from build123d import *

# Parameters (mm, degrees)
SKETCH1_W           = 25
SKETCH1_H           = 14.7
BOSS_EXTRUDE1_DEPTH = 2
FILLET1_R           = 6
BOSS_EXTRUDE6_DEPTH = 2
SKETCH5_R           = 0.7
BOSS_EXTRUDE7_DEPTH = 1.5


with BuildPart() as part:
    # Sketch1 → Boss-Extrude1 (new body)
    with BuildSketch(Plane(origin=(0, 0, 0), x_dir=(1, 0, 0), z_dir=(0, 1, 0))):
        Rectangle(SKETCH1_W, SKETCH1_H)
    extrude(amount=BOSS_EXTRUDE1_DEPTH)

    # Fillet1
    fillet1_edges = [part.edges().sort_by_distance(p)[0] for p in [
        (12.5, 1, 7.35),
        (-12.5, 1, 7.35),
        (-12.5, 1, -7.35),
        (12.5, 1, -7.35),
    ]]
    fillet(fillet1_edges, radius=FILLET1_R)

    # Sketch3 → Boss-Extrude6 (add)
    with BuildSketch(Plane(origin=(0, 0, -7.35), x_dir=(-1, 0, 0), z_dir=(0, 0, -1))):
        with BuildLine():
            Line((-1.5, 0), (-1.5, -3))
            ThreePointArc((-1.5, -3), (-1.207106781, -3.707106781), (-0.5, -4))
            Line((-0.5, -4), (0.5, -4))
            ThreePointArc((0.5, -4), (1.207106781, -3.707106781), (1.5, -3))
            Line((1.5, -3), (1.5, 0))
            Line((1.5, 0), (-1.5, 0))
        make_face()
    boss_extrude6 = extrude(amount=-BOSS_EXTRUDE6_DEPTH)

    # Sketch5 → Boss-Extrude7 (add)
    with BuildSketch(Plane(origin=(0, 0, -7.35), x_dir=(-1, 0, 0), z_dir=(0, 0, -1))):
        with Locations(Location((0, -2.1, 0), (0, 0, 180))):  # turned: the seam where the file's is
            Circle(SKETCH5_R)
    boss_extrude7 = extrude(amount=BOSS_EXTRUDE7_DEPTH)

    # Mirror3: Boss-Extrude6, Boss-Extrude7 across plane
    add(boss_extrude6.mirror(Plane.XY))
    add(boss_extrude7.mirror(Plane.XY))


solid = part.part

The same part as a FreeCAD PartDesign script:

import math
import FreeCAD as App
import Part
import Sketcher

V = App.Vector
Q = App.Units.Quantity


def edges_at(feature, points):
    """Names of the edges that pass closest to the given points."""
    edges = feature.Shape.Edges
    near = lambda p: min(range(len(edges)), key=lambda i: edges[i].distToShape(Part.Vertex(*p))[0])
    return sorted({f"Edge{near(p) + 1}" for p in points})

doc = App.newDocument("Part")
body = doc.addObject("PartDesign::Body", "Body")

sketch1 = body.newObject("Sketcher::SketchObject", "Sketch")
sketch1.AttachmentSupport = (doc.getObject("XZ_Plane"), [""])
sketch1.MapMode = "FlatFace"
sketch1.addGeometry([
    Part.LineSegment(V(-12, -7, 0), V(-12, 7, 0)),
    Part.LineSegment(V(-12, 7, 0), V(12, 7, 0)),
    Part.LineSegment(V(12, 7, 0), V(12, -7, 0)),
    Part.LineSegment(V(12, -7, 0), V(-12, -7, 0)),
], False)
sketch1.addConstraint([
    Sketcher.Constraint("Coincident", 0, 2, 1, 1),
    Sketcher.Constraint("Coincident", 1, 2, 2, 1),
    Sketcher.Constraint("Coincident", 2, 2, 3, 1),
    Sketcher.Constraint("Coincident", 3, 2, 0, 1),
    Sketcher.Constraint("Vertical", 0),
    Sketcher.Constraint("Horizontal", 1),
    Sketcher.Constraint("Vertical", 2),
    Sketcher.Constraint("Horizontal", 3),
    Sketcher.Constraint("Symmetric", 0, 2, 2, 2, -1, 1),
    Sketcher.Constraint("DistanceX", 1, 1, 1, 2, Q("25 mm")),
    Sketcher.Constraint("DistanceY", 0, 1, 0, 2, Q("14.7 mm")),
])
pad1 = body.newObject("PartDesign::Pad", "Pad")
pad1.Profile = sketch1
pad1.Length = 2
pad1.Reversed = True
doc.recompute()

fillet = body.newObject("PartDesign::Fillet", "Fillet")
fillet.Base = (pad1, edges_at(pad1, [
    (12.5, 1, 7.35),
    (-12.5, 1, 7.35),
    (-12.5, 1, -7.35),
    (12.5, 1, -7.35),
]))
fillet.Radius = 6

sketch2 = body.newObject("Sketcher::SketchObject", "Sketch001")
sketch2.AttachmentSupport = (doc.getObject("XY_Plane"), [""])
sketch2.MapMode = "FlatFace"
sketch2.AttachmentOffset = App.Placement(V(0, 0, -7.35), App.Rotation())
sketch2.addGeometry([
    Part.LineSegment(V(1.5, 0, 0), V(1.5, -3, 0)),
    Part.ArcOfCircle(Part.Circle(V(0.5, -3, 0), V(0, 0, 1), 1), math.radians(-90), math.radians(0)),
    Part.LineSegment(V(0.5, -4, 0), V(-0.5, -4, 0)),
    Part.ArcOfCircle(Part.Circle(V(-0.5, -3, 0), V(0, 0, 1), 1), math.radians(-180), math.radians(-90)),
    Part.LineSegment(V(-1.5, -3, 0), V(-1.5, 0, 0)),
    Part.LineSegment(V(-1.5, 0, 0), V(1.5, 0, 0)),
], False)
sketch2.addConstraint([
    Sketcher.Constraint("Tangent", 0, 2, 1, 2),
    Sketcher.Constraint("Tangent", 1, 1, 2, 1),
    Sketcher.Constraint("Tangent", 2, 2, 3, 2),
    Sketcher.Constraint("Tangent", 3, 1, 4, 1),
    Sketcher.Constraint("Coincident", 4, 2, 5, 1),
    Sketcher.Constraint("Coincident", 5, 2, 0, 1),
    Sketcher.Constraint("Vertical", 0),
    Sketcher.Constraint("Horizontal", 2),
    Sketcher.Constraint("Vertical", 4),
    Sketcher.Constraint("Horizontal", 5),
    Sketcher.Constraint("Equal", 1, 3),
    Sketcher.Constraint("Symmetric", 4, 2, 5, 2, -1, 1),
    Sketcher.Constraint("Equal", 5, 0),
    Sketcher.Constraint("Radius", 1, Q("1 mm")),
    Sketcher.Constraint("DistanceX", 2, 2, 2, 1, Q("1 mm")),
])
pad2 = body.newObject("PartDesign::Pad", "Pad001")
pad2.Profile = sketch2
pad2.Length = 2

sketch3 = body.newObject("Sketcher::SketchObject", "Sketch002")
sketch3.AttachmentSupport = (doc.getObject("XY_Plane"), [""])
sketch3.MapMode = "FlatFace"
sketch3.AttachmentOffset = App.Placement(V(0, 0, -7.35), App.Rotation())
sketch3.addGeometry(Part.Circle(V(0, -2.1, 0), V(0, 0, 1), 0.7), False)
sketch3.addConstraint([
    Sketcher.Constraint("PointOnObject", 0, 3, -2),
    Sketcher.Constraint("Diameter", 0, Q("1.4 mm")),
    Sketcher.Constraint("DistanceY", 0, 3, -1, 1, Q("2.1 mm")),
])
pad3 = body.newObject("PartDesign::Pad", "Pad002")
pad3.Profile = sketch3
pad3.Length = 1.5
pad3.Reversed = True
doc.recompute()

mirrored = body.newObject("PartDesign::Mirrored", "Mirrored")
mirrored.Originals = [pad2, pad3]
mirrored.MirrorPlane = (doc.getObject("XY_Plane"), [""])
body.Tip = mirrored

doc.recompute()
